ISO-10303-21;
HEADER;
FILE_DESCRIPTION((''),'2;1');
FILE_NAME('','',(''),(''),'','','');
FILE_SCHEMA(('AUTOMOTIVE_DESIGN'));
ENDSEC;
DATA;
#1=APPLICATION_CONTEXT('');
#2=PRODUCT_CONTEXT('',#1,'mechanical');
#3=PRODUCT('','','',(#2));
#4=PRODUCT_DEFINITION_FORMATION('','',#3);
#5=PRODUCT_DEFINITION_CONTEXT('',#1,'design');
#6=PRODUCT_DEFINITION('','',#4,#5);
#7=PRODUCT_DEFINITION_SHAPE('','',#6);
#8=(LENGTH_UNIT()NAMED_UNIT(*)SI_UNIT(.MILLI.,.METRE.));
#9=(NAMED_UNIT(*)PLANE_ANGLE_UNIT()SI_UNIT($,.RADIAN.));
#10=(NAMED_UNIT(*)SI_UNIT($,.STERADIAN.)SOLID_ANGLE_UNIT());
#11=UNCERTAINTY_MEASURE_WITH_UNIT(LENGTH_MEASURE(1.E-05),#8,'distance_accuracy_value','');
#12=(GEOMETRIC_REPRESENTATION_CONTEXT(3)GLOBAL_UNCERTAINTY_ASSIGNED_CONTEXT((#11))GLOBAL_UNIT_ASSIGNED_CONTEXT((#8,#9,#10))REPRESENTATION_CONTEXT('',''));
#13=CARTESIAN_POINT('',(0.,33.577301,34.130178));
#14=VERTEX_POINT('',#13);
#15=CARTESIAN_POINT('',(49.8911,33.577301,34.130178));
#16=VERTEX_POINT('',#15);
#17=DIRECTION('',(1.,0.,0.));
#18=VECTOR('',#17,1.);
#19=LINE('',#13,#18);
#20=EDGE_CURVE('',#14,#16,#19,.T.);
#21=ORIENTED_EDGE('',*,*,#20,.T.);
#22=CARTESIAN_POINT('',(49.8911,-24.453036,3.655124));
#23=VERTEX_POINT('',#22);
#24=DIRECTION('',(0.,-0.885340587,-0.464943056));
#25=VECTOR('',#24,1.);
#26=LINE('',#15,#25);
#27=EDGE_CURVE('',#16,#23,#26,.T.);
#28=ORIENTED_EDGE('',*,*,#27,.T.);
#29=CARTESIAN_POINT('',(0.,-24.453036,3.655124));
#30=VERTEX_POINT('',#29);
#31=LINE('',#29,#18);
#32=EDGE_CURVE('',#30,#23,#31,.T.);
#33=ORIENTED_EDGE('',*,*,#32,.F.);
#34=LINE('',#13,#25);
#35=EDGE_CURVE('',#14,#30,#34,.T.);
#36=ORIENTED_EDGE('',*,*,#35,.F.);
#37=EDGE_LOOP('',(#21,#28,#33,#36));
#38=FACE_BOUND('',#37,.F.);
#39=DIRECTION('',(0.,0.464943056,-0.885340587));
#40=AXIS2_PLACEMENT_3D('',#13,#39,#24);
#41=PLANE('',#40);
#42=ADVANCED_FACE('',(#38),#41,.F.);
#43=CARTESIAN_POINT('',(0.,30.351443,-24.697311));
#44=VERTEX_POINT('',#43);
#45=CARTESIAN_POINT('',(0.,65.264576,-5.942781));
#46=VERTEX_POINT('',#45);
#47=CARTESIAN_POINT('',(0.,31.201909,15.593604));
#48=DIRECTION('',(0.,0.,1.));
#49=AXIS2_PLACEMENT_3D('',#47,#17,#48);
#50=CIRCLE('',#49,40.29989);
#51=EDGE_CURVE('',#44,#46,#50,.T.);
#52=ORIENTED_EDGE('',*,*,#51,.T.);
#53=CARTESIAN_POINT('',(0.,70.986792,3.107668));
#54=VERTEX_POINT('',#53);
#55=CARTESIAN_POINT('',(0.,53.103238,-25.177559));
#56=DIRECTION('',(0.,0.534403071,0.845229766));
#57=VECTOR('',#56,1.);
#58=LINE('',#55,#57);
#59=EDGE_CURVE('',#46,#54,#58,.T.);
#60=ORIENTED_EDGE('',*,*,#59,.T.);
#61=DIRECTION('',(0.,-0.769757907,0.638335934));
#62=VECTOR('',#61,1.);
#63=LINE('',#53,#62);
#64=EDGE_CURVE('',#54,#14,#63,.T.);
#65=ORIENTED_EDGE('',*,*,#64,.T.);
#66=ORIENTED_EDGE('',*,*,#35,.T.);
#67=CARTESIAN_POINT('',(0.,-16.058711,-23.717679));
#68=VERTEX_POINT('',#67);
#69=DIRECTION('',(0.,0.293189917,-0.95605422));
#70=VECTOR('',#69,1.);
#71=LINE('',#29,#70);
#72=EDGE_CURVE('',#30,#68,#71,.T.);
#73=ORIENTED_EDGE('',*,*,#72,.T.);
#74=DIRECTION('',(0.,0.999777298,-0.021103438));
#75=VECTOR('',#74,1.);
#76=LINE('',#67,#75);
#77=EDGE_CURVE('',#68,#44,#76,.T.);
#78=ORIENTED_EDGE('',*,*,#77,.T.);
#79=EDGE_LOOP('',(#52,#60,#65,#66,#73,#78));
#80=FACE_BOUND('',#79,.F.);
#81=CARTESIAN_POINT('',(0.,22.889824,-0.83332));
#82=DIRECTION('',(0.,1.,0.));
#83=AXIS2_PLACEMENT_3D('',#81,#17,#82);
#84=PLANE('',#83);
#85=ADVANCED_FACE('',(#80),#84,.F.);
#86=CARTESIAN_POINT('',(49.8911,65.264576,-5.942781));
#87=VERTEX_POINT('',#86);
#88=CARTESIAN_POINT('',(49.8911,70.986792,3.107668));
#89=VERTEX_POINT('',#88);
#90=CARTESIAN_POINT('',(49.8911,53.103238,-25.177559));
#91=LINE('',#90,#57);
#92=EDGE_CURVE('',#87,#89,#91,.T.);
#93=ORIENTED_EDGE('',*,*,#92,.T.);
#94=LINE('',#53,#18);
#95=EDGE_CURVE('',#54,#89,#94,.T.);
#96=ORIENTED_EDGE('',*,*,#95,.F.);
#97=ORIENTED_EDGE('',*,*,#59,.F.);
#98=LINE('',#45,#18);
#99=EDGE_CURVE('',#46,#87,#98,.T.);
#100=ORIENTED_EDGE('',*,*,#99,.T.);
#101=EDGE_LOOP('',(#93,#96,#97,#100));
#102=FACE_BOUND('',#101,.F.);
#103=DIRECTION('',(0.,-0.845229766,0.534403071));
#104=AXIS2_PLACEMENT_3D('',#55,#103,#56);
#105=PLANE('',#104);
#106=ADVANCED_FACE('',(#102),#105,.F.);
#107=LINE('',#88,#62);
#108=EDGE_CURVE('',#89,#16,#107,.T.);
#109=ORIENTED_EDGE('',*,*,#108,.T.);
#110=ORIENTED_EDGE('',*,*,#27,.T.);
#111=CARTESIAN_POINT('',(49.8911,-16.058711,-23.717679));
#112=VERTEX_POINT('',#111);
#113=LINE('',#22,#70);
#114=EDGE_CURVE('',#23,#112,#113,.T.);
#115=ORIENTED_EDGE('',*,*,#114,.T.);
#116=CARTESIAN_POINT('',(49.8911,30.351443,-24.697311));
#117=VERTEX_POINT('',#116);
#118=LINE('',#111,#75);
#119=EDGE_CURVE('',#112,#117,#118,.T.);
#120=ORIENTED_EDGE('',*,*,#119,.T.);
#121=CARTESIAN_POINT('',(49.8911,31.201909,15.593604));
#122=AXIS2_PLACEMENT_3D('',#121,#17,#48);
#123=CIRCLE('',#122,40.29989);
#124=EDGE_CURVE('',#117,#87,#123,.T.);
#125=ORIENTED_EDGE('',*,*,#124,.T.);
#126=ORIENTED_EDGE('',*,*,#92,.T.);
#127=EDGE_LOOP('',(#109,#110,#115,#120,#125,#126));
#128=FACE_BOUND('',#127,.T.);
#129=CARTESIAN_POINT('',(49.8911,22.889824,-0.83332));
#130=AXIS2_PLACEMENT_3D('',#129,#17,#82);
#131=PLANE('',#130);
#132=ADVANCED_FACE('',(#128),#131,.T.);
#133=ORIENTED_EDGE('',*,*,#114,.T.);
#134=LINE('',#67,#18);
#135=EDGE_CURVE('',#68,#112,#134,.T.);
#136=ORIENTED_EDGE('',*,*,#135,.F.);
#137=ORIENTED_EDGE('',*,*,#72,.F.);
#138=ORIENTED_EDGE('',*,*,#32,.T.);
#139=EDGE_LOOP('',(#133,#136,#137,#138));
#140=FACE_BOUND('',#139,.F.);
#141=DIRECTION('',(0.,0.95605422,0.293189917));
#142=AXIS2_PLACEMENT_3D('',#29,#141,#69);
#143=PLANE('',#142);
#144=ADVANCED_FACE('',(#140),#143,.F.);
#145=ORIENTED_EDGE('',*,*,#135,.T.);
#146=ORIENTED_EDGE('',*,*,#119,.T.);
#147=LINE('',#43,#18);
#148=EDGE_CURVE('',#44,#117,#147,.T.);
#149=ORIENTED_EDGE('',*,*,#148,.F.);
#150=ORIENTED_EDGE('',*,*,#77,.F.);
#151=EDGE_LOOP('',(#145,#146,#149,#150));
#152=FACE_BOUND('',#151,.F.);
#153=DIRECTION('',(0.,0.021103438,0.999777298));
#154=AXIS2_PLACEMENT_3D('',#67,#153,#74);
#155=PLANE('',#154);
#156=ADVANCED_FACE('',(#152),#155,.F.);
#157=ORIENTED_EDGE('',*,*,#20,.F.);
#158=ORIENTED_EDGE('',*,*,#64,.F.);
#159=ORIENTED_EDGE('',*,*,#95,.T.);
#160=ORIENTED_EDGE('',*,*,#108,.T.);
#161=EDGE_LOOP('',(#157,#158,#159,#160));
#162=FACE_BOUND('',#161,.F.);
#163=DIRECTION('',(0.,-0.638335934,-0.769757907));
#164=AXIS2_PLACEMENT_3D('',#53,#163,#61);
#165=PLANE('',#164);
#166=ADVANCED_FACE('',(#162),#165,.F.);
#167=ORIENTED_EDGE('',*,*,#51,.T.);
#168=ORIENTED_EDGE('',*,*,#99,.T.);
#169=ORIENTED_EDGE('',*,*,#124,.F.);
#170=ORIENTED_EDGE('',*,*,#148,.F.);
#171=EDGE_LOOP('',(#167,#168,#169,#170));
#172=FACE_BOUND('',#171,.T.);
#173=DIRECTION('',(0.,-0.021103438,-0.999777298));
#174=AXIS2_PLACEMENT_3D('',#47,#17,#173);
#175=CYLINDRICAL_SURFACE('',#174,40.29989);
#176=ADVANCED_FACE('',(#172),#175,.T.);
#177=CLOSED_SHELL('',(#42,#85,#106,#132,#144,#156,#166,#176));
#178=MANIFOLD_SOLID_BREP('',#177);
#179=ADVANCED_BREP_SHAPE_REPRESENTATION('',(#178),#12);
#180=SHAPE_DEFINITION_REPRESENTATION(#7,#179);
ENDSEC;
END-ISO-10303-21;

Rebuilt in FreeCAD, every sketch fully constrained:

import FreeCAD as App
import Part
import Sketcher
from FreeCAD import Vector
Q = App.Units.Quantity


def edges_at(feature, points):
    """Names of the edges that pass closest to the given points."""
    edges = feature.Shape.Edges
    near = lambda p: min(range(len(edges)), key=lambda i: edges[i].distToShape(Part.Vertex(*p))[0])
    return sorted({f"Edge{near(p) + 1}" for p in points})

doc = App.newDocument("Part")
body = doc.addObject("PartDesign::Body", "Body")

# Sketch on YZ plane
sketch1 = body.newObject("Sketcher::SketchObject", "Sketch")
sketch1.AttachmentSupport = (doc.getObject("YZ_Plane"), [""])
sketch1.MapMode = "FlatFace"
sketch1.addGeometry(Part.LineSegment(Vector(33.577301, 34.130178, 0), Vector(-24.453036, 3.655124, 0)), False)
sketch1.addGeometry(Part.LineSegment(Vector(-24.453036, 3.655124, 0), Vector(-16.058711, -23.717679, 0)), False)
sketch1.addGeometry(Part.LineSegment(Vector(-16.058711, -23.717679, 0), Vector(53.103238, -25.177559, 0)), False)
sketch1.addGeometry(Part.LineSegment(Vector(53.103238, -25.177559, 0), Vector(70.986792, 3.107668, 0)), False)
sketch1.addGeometry(Part.LineSegment(Vector(70.986792, 3.107668, 0), Vector(33.577301, 34.130178, 0)), False)
sketch1.addConstraint(Sketcher.Constraint("Coincident", 0, 2, 1, 1))
sketch1.addConstraint(Sketcher.Constraint("Coincident", 1, 2, 2, 1))
sketch1.addConstraint(Sketcher.Constraint("Coincident", 2, 2, 3, 1))
sketch1.addConstraint(Sketcher.Constraint("Coincident", 3, 2, 4, 1))
sketch1.addConstraint(Sketcher.Constraint("Coincident", 4, 2, 0, 1))
sketch1.addConstraint(Sketcher.Constraint("DistanceX", -1, 1, 4, 2, Q("33.577301 mm")))
sketch1.addConstraint(Sketcher.Constraint("Distance", 3, Q("33.464542 mm")))
sketch1.addConstraint(Sketcher.Constraint("DistanceX", 1, 2, -1, 1, Q("16.058711 mm")))
sketch1.addConstraint(Sketcher.Constraint("DistanceY", 1, 2, -1, 1, Q("23.717679 mm")))
sketch1.addConstraint(Sketcher.Constraint("DistanceY", 2, 2, -1, 1, Q("25.177559 mm")))
sketch1.addConstraint(Sketcher.Constraint("DistanceX", -1, 1, 3, 2, Q("70.986792 mm")))
sketch1.addConstraint(Sketcher.Constraint("DistanceX", 1, 2, 2, 2, Q("69.161949 mm")))
sketch1.addConstraint(Sketcher.Constraint("DistanceY", 3, 2, 4, 2, Q("31.02251 mm")))
sketch1.addConstraint(Sketcher.Constraint("Distance", 0, Q("65.545777 mm")))
sketch1.addConstraint(Sketcher.Constraint("Distance", 1, Q("28.631015 mm")))
pad1 = body.newObject("PartDesign::Pad", "Pad")
pad1.Profile = sketch1
pad1.Length = 49.8911
doc.recompute()

fillet = body.newObject("PartDesign::Fillet", "Fillet")
fillet.Base = (pad1, edges_at(pad1, [(24.946, 53.103, -25.178)]))
fillet.Radius = 40.29989

doc.recompute()
